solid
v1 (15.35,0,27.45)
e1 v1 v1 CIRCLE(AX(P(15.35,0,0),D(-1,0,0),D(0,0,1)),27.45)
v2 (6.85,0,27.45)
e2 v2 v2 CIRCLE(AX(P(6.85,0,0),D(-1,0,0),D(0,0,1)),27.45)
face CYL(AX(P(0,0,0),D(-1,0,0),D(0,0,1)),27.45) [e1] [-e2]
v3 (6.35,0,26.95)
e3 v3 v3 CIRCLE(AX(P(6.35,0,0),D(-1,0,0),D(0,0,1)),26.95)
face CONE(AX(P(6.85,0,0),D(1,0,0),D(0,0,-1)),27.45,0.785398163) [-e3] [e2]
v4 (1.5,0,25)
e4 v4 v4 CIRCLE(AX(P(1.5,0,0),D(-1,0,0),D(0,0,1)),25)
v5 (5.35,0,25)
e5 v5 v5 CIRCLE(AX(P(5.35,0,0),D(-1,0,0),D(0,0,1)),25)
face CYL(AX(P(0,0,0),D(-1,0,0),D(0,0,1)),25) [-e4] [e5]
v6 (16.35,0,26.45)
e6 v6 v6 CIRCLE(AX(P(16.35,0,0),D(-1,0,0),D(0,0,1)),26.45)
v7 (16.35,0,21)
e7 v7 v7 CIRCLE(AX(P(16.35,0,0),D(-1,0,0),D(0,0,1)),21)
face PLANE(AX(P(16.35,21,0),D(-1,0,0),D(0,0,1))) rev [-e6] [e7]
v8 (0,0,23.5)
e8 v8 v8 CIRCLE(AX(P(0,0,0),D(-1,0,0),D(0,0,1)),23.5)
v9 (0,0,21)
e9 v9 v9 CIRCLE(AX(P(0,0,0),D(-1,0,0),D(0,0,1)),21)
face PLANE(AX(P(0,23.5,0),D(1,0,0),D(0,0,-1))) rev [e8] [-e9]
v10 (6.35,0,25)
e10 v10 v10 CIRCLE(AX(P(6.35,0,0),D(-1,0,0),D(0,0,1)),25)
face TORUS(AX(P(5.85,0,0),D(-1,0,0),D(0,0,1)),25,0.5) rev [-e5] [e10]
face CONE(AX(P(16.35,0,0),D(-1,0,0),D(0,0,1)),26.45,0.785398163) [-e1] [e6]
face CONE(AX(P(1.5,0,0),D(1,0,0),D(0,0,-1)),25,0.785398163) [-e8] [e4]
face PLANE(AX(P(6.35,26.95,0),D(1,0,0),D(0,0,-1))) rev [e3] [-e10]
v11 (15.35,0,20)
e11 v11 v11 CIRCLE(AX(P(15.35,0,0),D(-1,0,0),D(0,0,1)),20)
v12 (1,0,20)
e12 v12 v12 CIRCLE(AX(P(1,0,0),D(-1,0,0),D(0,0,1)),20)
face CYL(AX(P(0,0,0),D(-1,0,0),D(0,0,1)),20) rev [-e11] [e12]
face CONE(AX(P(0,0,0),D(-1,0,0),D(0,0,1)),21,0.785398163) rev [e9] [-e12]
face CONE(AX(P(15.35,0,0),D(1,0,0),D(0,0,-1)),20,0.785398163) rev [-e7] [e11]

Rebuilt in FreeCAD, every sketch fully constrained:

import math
import FreeCAD as App
import Part
import Sketcher
Q = App.Units.Quantity

doc = App.newDocument("Part")
body = doc.addObject("PartDesign::Body", "Body")

# Sketch on XY plane
sketch1 = body.newObject("Sketcher::SketchObject", "Sketch")
sketch1.AttachmentSupport = (doc.getObject("XY_Plane"), [""])
sketch1.MapMode = "FlatFace"
sketch1.addGeometry(Part.LineSegment(App.Vector(0, 23.5, 0), App.Vector(0, 21, 0)), False)
sketch1.addGeometry(Part.LineSegment(App.Vector(0, 21, 0), App.Vector(1, 20, 0)), False)
sketch1.addGeometry(Part.LineSegment(App.Vector(1, 20, 0), App.Vector(15.35, 20, 0)), False)
sketch1.addGeometry(Part.LineSegment(App.Vector(15.35, 20, 0), App.Vector(16.35, 21, 0)), False)
sketch1.addGeometry(Part.LineSegment(App.Vector(16.35, 21, 0), App.Vector(16.35, 26.45, 0)), False)
sketch1.addGeometry(Part.LineSegment(App.Vector(16.35, 26.45, 0), App.Vector(15.35, 27.45, 0)), False)
sketch1.addGeometry(Part.LineSegment(App.Vector(15.35, 27.45, 0), App.Vector(6.85, 27.45, 0)), False)
sketch1.addGeometry(Part.LineSegment(App.Vector(6.85, 27.45, 0), App.Vector(6.35, 26.95, 0)), False)
sketch1.addGeometry(Part.LineSegment(App.Vector(6.35, 26.95, 0), App.Vector(6.35, 25, 0)), False)
sketch1.addGeometry(Part.ArcOfCircle(Part.Circle(App.Vector(5.85, 25, 0), App.Vector(0, 0, 1), 0.5), math.radians(180), math.radians(360)), False)
sketch1.addGeometry(Part.LineSegment(App.Vector(5.35, 25, 0), App.Vector(1.5, 25, 0)), False)
sketch1.addGeometry(Part.LineSegment(App.Vector(1.5, 25, 0), App.Vector(0, 23.5, 0)), False)
sketch1.addConstraint(Sketcher.Constraint("Coincident", 0, 2, 1, 1))
sketch1.addConstraint(Sketcher.Constraint("Coincident", 1, 2, 2, 1))
sketch1.addConstraint(Sketcher.Constraint("Coincident", 2, 2, 3, 1))
sketch1.addConstraint(Sketcher.Constraint("Coincident", 3, 2, 4, 1))
sketch1.addConstraint(Sketcher.Constraint("Coincident", 4, 2, 5, 1))
sketch1.addConstraint(Sketcher.Constraint("Coincident", 5, 2, 6, 1))
sketch1.addConstraint(Sketcher.Constraint("Coincident", 6, 2, 7, 1))
sketch1.addConstraint(Sketcher.Constraint("Coincident", 7, 2, 8, 1))
sketch1.addConstraint(Sketcher.Constraint("Tangent", 8, 2, 9, 2))
sketch1.addConstraint(Sketcher.Constraint("Coincident", 9, 1, 10, 1))
sketch1.addConstraint(Sketcher.Constraint("Coincident", 10, 2, 11, 1))
sketch1.addConstraint(Sketcher.Constraint("Coincident", 11, 2, 0, 1))
sketch1.addConstraint(Sketcher.Constraint("Vertical", 0))
sketch1.addConstraint(Sketcher.Constraint("Horizontal", 2))
sketch1.addConstraint(Sketcher.Constraint("Vertical", 4))
sketch1.addConstraint(Sketcher.Constraint("Horizontal", 6))
sketch1.addConstraint(Sketcher.Constraint("Vertical", 8))
sketch1.addConstraint(Sketcher.Constraint("Horizontal", 10))
sketch1.addConstraint(Sketcher.Constraint("PointOnObject", 0, 2, -2))
sketch1.addConstraint(Sketcher.Constraint("Perpendicular", 1, 3))
sketch1.addConstraint(Sketcher.Constraint("Perpendicular", 3, 5))
sketch1.addConstraint(Sketcher.Constraint("Perpendicular", 5, 7))
sketch1.addConstraint(Sketcher.Constraint("Parallel", 7, 11))
sketch1.addConstraint(Sketcher.Constraint("Horizontal", 0, 2, 3, 2))
sketch1.addConstraint(Sketcher.Constraint("Horizontal", 8, 2, 9, 1))
sketch1.addConstraint(Sketcher.Constraint("Vertical", 2, 2, 5, 2))
sketch1.addConstraint(Sketcher.Constraint("Equal", 1, 3))
sketch1.addConstraint(Sketcher.Constraint("Radius", 9, Q("0.5 mm")))
sketch1.addConstraint(Sketcher.Constraint("DistanceX", 6, 2, 6, 1, Q("8.5 mm")))
sketch1.addConstraint(Sketcher.Constraint("DistanceY", 0, 2, 0, 1, Q("2.5 mm")))
sketch1.addConstraint(Sketcher.Constraint("DistanceY", -1, 1, 9, 3, Q("25 mm")))
sketch1.addConstraint(Sketcher.Constraint("DistanceY", -1, 1, 0, 2, Q("21 mm")))
sketch1.addConstraint(Sketcher.Constraint("DistanceX", -1, 1, 1, 2, Q("1 mm")))
sketch1.addConstraint(Sketcher.Constraint("DistanceX", 9, 3, 6, 2, Q("1 mm")))
sketch1.addConstraint(Sketcher.Constraint("DistanceX", 2, 1, 2, 2, Q("14.35 mm")))
sketch1.addConstraint(Sketcher.Constraint("DistanceY", 4, 1, 4, 2, Q("5.45 mm")))
revolution = body.newObject("PartDesign::Revolution", "Revolution")
revolution.Profile = sketch1
revolution.ReferenceAxis = (sketch1, ["H_Axis"])
revolution.Angle = 360

doc.recompute()
